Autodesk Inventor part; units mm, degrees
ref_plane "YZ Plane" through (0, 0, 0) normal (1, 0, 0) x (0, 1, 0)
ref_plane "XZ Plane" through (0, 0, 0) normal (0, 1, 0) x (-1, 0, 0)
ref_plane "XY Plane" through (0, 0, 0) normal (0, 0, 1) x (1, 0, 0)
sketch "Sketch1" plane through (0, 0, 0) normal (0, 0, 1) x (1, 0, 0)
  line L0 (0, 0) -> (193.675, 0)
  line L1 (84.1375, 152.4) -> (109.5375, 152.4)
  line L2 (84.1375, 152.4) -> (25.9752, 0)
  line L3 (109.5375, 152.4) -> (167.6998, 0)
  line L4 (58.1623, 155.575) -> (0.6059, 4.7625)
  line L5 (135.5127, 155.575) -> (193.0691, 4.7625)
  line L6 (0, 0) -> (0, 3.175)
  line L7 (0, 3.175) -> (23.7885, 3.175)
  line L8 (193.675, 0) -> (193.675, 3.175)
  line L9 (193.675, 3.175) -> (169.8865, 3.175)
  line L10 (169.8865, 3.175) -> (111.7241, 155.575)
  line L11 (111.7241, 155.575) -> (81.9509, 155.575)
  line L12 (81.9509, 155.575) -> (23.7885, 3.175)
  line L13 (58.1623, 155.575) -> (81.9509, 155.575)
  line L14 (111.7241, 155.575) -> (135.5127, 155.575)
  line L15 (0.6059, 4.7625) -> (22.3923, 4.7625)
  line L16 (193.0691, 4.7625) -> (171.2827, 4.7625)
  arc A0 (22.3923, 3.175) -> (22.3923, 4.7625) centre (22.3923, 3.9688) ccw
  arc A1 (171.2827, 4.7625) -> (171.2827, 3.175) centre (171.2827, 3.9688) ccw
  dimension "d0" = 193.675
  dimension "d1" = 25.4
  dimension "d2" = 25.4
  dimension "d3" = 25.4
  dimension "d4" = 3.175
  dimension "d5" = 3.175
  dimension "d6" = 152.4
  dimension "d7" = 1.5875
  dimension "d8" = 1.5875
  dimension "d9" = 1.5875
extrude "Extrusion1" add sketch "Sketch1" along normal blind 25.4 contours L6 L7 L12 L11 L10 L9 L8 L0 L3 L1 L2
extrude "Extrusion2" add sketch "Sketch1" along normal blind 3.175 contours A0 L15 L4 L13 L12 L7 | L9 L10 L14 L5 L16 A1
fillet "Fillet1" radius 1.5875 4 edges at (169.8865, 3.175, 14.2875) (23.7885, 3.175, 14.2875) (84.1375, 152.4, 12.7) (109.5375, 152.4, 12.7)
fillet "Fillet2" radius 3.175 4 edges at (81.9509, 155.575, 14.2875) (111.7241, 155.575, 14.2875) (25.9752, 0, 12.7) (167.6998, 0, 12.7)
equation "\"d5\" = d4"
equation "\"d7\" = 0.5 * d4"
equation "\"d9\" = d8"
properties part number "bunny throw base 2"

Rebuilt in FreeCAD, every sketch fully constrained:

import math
import FreeCAD as App
import Part
import Sketcher
Q = App.Units.Quantity


def edges_at(feature, points):
    """Names of the edges that pass closest to the given points."""
    edges = feature.Shape.Edges
    near = lambda p: min(range(len(edges)), key=lambda i: edges[i].distToShape(Part.Vertex(*p))[0])
    return sorted({f"Edge{near(p) + 1}" for p in points})


def add_polygon(sketch, points):
    """Adds a closed chain of lines whose ends are joined by coincident constraints."""
    first, n = sketch.GeometryCount, len(points)
    for a, b in zip(points, points[1:] + points[:1]):
        sketch.addGeometry(Part.LineSegment(App.Vector(*a, 0), App.Vector(*b, 0)), False)
    for i in range(n):
        sketch.addConstraint(Sketcher.Constraint("Coincident", first + i, 2, first + (i + 1) % n, 1))

doc = App.newDocument("Part")
params = doc.addObject("Spreadsheet::Sheet", "Params")
for row, (alias, value) in enumerate([
    ("sketch1_width", "1 in"),
    ("sketch1_height", "0.125 in"),
    ("pad1_length", "1 in"),
    ("sketch2_radius", "0.031252 in"),
    ("pad2_length", "0.125 in"),
    ("fillet_radius", "0.0625 in"),
    ("fillet2_radius", "0.125 in"),
], start=1):
    params.set(f"A{row}", alias)
    params.set(f"B{row}", "=" + value)
    params.setAlias(f"B{row}", alias)

body = doc.addObject("PartDesign::Body", "Body")

sketch1 = doc.addObject("Sketcher::SketchObject", "Sketch")
body.addObject(sketch1)
sketch1.AttachmentSupport = (doc.XY_Plane, [""])
sketch1.MapMode = "FlatFace"
add_polygon(sketch1, [(0, 3.2), (0, 0), (26, 0), (84.1, 152.4), (109.5, 152.4), (167.7, 0), (193.7, 0), (193.7, 3.2), (169.9, 3.2), (111.7, 155.6), (82, 155.6), (23.8, 3.2)])
sketch1.addConstraint([
    Sketcher.Constraint("Vertical", 0),
    Sketcher.Constraint("Horizontal", 1),
    Sketcher.Constraint("Horizontal", 3),
    Sketcher.Constraint("Horizontal", 5),
    Sketcher.Constraint("Vertical", 6),
    Sketcher.Constraint("Horizontal", 7),
    Sketcher.Constraint("Horizontal", 9),
    Sketcher.Constraint("Horizontal", 11),
    Sketcher.Constraint("Coincident", 0, 2, -1, 1),
    Sketcher.Constraint("PointOnObject", 4, 2, -1),
    Sketcher.Constraint("Parallel", 4, 8),
    Sketcher.Constraint("Parallel", 2, 10),
    Sketcher.Constraint("Horizontal", 7, 2, 10, 2),
    Sketcher.Constraint("Equal", 1, 5),
    Sketcher.Constraint("Equal", 7, 11),
    Sketcher.Constraint("Equal", 2, 4),
    Sketcher.Constraint("Equal", 4, 8),
    Sketcher.Constraint("DistanceX", 3, 1, 3, 2, Q("1 in")),
    Sketcher.Constraint("DistanceY", -1, 1, 2, 2, Q("6 in")),
    Sketcher.Constraint("DistanceY", 0, 2, 0, 1, Q("0.125 in")),
    Sketcher.Constraint("DistanceX", -1, 1, 5, 2, Q("7.625 in")),
    Sketcher.Constraint("Angle", 2, Q("69.111 deg")),
    Sketcher.Constraint("DistanceX", 7, 2, 7, 1, 23.7885),
])
sketch1.setExpression("Constraints[29]", "Params.sketch1_width")
sketch1.setExpression("Constraints[31]", "Params.sketch1_height")
pad1 = doc.addObject("PartDesign::Pad", "Pad")
body.addObject(pad1)
pad1.Profile = sketch1
pad1.setExpression("Length", "Params.pad1_length")

sketch2 = doc.addObject("Sketcher::SketchObject", "Sketch001")
body.addObject(sketch2)
sketch2.AttachmentSupport = (doc.XY_Plane, [""])
sketch2.MapMode = "FlatFace"
sketch2.addGeometry([
    Part.ArcOfCircle(Part.Circle(App.Vector(22.4, 4, 0), App.Vector(0, 0, 1), 0.8), math.radians(-90), math.radians(90)),
    Part.LineSegment(App.Vector(22.4, 3.2, 0), App.Vector(23.8, 3.2, 0)),
    Part.LineSegment(App.Vector(23.8, 3.2, 0), App.Vector(82, 155.6, 0)),
    Part.LineSegment(App.Vector(82, 155.6, 0), App.Vector(58.2, 155.6, 0)),
    Part.LineSegment(App.Vector(58.2, 155.6, 0), App.Vector(0.6, 4.8, 0)),
    Part.LineSegment(App.Vector(0.6, 4.8, 0), App.Vector(22.4, 4.8, 0)),
    Part.LineSegment(App.Vector(169.9, 3.2, 0), App.Vector(171.3, 3.2, 0)),
    Part.ArcOfCircle(Part.Circle(App.Vector(171.3, 4, 0), App.Vector(0, 0, 1), 0.8), math.radians(90), math.radians(270)),
    Part.LineSegment(App.Vector(171.3, 4.8, 0), App.Vector(193.1, 4.8, 0)),
    Part.LineSegment(App.Vector(193.1, 4.8, 0), App.Vector(135.5, 155.6, 0)),
    Part.LineSegment(App.Vector(135.5, 155.6, 0), App.Vector(111.7, 155.6, 0)),
    Part.LineSegment(App.Vector(111.7, 155.6, 0), App.Vector(169.9, 3.2, 0)),
], False)
sketch2.addConstraint([
    Sketcher.Constraint("Tangent", 0, 1, 1, 1),
    Sketcher.Constraint("Coincident", 1, 2, 2, 1),
    Sketcher.Constraint("Coincident", 2, 2, 3, 1),
    Sketcher.Constraint("Coincident", 3, 2, 4, 1),
    Sketcher.Constraint("Coincident", 4, 2, 5, 1),
    Sketcher.Constraint("Tangent", 5, 2, 0, 2),
    Sketcher.Constraint("Tangent", 6, 2, 7, 2),
    Sketcher.Constraint("Tangent", 7, 1, 8, 1),
    Sketcher.Constraint("Coincident", 8, 2, 9, 1),
    Sketcher.Constraint("Coincident", 9, 2, 10, 1),
    Sketcher.Constraint("Coincident", 10, 2, 11, 1),
    Sketcher.Constraint("Coincident", 11, 2, 6, 1),
    Sketcher.Constraint("Horizontal", 1),
    Sketcher.Constraint("Horizontal", 3),
    Sketcher.Constraint("Horizontal", 5),
    Sketcher.Constraint("Horizontal", 6),
    Sketcher.Constraint("Horizontal", 8),
    Sketcher.Constraint("Horizontal", 10),
    Sketcher.Constraint("Equal", 0, 7),
    Sketcher.Constraint("Parallel", 2, 4),
    Sketcher.Constraint("Parallel", 9, 11),
    Sketcher.Constraint("Horizontal", 0, 3, 7, 3),
    Sketcher.Constraint("Horizontal", 3, 2, 9, 2),
    Sketcher.Constraint("Equal", 1, 6),
    Sketcher.Constraint("Equal", 5, 8),
    Sketcher.Constraint("Equal", 3, 10),
    Sketcher.Constraint("Radius", 0, Q("0.031252 in")),
    Sketcher.Constraint("DistanceY", 1, 2, 2, 2, Q("6 in")),
    Sketcher.Constraint("DistanceY", -1, 1, 0, 1, Q("0.125 in")),
    Sketcher.Constraint("Angle", 2, Q("69.111 deg")),
    Sketcher.Constraint("DistanceX", 2, 2, 7, 3, Q("3.517 in")),
    Sketcher.Constraint("DistanceX", 1, 1, 1, 2, 1.3962),
    Sketcher.Constraint("DistanceX", 3, 2, 3, 1, 23.7886),
    Sketcher.Constraint("DistanceX", -1, 1, 0, 3, 22.3923),
])
sketch2.setExpression("Constraints[26]", "Params.sketch2_radius")
pad2 = doc.addObject("PartDesign::Pad", "Pad001")
body.addObject(pad2)
pad2.Profile = sketch2
pad2.setExpression("Length", "Params.pad2_length")
doc.recompute()

fillet = doc.addObject("PartDesign::Fillet", "Fillet")
body.addObject(fillet)
fillet.Base = (pad2, edges_at(pad2, [
    (169.887, 3.175, 14.287),
    (23.788, 3.175, 14.287),
    (84.138, 152.4, 12.7),
    (109.537, 152.4, 12.7),
]))
fillet.setExpression("Radius", "Params.fillet_radius")
doc.recompute()

fillet2 = doc.addObject("PartDesign::Fillet", "Fillet001")
body.addObject(fillet2)
fillet2.Base = (fillet, edges_at(fillet, [
    (81.951, 155.575, 14.287),
    (111.724, 155.575, 14.287),
    (25.975, 0, 12.7),
    (167.7, 0, 12.7),
]))
fillet2.setExpression("Radius", "Params.fillet2_radius")

doc.recompute()
